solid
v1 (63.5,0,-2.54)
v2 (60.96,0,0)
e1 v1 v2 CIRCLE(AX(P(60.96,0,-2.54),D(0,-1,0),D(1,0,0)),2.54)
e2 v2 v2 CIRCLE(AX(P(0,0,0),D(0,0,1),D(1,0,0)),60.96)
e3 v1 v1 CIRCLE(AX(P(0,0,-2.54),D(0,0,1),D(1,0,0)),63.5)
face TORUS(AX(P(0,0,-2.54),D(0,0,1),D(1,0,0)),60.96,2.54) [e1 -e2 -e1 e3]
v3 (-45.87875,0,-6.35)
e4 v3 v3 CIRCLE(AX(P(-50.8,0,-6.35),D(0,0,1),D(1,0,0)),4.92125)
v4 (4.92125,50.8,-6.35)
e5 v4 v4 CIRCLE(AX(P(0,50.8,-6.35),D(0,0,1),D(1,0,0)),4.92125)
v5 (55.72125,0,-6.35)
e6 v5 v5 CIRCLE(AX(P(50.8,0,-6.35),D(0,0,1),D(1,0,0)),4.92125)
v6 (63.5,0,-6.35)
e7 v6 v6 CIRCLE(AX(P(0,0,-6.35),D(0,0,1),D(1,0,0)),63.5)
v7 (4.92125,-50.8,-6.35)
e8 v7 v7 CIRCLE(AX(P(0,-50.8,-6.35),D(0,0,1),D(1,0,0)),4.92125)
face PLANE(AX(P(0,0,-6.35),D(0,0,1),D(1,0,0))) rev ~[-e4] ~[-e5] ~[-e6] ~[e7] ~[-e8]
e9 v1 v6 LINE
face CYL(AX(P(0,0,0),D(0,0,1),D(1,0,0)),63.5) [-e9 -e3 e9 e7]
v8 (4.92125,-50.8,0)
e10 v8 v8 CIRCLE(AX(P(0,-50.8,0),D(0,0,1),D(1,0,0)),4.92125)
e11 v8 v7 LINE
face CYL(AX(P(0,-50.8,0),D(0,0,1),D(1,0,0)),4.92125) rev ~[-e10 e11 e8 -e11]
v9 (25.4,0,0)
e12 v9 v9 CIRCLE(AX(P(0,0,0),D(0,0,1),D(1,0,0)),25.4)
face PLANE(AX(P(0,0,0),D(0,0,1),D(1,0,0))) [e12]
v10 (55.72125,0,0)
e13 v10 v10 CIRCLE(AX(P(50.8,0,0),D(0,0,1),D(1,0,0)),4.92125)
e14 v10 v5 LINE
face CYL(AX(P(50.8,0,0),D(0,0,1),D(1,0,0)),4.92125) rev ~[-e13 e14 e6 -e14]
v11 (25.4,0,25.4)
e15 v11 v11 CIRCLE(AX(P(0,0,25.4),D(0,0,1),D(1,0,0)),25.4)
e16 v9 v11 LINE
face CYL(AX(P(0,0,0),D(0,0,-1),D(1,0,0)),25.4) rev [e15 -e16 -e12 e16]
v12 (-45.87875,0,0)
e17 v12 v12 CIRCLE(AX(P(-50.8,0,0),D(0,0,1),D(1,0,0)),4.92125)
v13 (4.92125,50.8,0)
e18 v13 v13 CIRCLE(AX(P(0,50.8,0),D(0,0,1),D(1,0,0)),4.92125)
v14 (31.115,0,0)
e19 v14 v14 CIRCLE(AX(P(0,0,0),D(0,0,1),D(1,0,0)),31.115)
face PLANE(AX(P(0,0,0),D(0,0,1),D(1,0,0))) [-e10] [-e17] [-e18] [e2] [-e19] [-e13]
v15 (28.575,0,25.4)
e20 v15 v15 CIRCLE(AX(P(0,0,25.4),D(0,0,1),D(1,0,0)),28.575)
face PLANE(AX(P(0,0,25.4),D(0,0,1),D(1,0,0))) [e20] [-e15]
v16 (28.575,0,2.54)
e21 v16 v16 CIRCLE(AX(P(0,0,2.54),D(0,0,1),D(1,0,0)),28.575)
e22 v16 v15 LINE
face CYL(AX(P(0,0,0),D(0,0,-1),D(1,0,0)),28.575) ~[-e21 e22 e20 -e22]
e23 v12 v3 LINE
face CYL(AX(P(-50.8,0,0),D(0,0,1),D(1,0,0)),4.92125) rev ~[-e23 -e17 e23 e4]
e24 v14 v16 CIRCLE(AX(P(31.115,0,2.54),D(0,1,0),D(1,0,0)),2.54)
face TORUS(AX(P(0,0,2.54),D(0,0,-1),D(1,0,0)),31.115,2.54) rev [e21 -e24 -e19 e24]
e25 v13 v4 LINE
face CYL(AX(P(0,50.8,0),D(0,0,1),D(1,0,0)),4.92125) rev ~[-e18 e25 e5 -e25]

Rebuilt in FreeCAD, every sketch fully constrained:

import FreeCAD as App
import Part
import Sketcher
Q = App.Units.Quantity


def edges_at(feature, points):
    """Names of the edges that pass closest to the given points."""
    edges = feature.Shape.Edges
    near = lambda p: min(range(len(edges)), key=lambda i: edges[i].distToShape(Part.Vertex(*p))[0])
    return sorted({f"Edge{near(p) + 1}" for p in points})

doc = App.newDocument("Part")
body = doc.addObject("PartDesign::Body", "Body")

# Sketch on XY plane
sketch1 = doc.addObject("Sketcher::SketchObject", "Sketch")
body.addObject(sketch1)
sketch1.AttachmentSupport = (doc.XY_Plane, [""])
sketch1.MapMode = "FlatFace"
sketch1.addGeometry(Part.Circle(App.Vector(0, 0, 0), App.Vector(0, 0, 1), 29), False)
sketch1.addGeometry(Part.Circle(App.Vector(0, 0, 0), App.Vector(0, 0, 1), 25), False)
sketch1.addConstraint(Sketcher.Constraint("Coincident", 0, 3, -1, 1))
sketch1.addConstraint(Sketcher.Constraint("Coincident", 1, 3, -1, 1))
sketch1.addConstraint(Sketcher.Constraint("Diameter", 1, Q("2 in")))
sketch1.addConstraint(Sketcher.Constraint("Diameter", 0, Q("2.25 in")))
pad1 = doc.addObject("PartDesign::Pad", "Pad")
body.addObject(pad1)
pad1.Profile = sketch1
pad1.Length = Q("1 in")

# Sketch on XY plane
sketch2 = doc.addObject("Sketcher::SketchObject", "Sketch001")
body.addObject(sketch2)
sketch2.AttachmentSupport = (doc.XY_Plane, [""])
sketch2.MapMode = "FlatFace"
sketch2.addGeometry(Part.Circle(App.Vector(0, 0, 0), App.Vector(0, 0, 1), 64), False)
sketch2.addConstraint(Sketcher.Constraint("Coincident", 0, 3, -1, 1))
sketch2.addConstraint(Sketcher.Constraint("Diameter", 0, Q("5 in")))
pad2 = doc.addObject("PartDesign::Pad", "Pad001")
body.addObject(pad2)
pad2.Profile = sketch2
pad2.Length = Q("0.25 in")
pad2.Reversed = True
doc.recompute()

fillet = doc.addObject("PartDesign::Fillet", "Fillet")
body.addObject(fillet)
fillet.Base = (pad2, edges_at(pad2, [(-63.5, 0, 0), (-28.575, 0, 0)]))
fillet.Radius = Q("0.1 in")

# Sketch on XY plane
sketch3 = doc.addObject("Sketcher::SketchObject", "Sketch002")
body.addObject(sketch3)
sketch3.AttachmentSupport = (doc.XY_Plane, [""])
sketch3.MapMode = "FlatFace"
sketch3.addGeometry(Part.Circle(App.Vector(50.8, 0, 0), App.Vector(0, 0, 1), 4.9), False)
sketch3.addGeometry(Part.Circle(App.Vector(0, -50.8, 0), App.Vector(0, 0, 1), 4.9), False)
sketch3.addGeometry(Part.Circle(App.Vector(-50.8, 0, 0), App.Vector(0, 0, 1), 4.9), False)
sketch3.addGeometry(Part.Circle(App.Vector(0, 50.8, 0), App.Vector(0, 0, 1), 4.9), False)
sketch3.addConstraint(Sketcher.Constraint("Equal", 0, 1))
sketch3.addConstraint(Sketcher.Constraint("Equal", 1, 2))
sketch3.addConstraint(Sketcher.Constraint("Equal", 2, 3))
sketch3.addConstraint(Sketcher.Constraint("Symmetric", 0, 3, 2, 3, -1, 1))
sketch3.addConstraint(Sketcher.Constraint("Symmetric", 1, 3, 3, 3, -1, 1))
sketch3.addConstraint(Sketcher.Constraint("PointOnObject", 0, 3, -1))
sketch3.addConstraint(Sketcher.Constraint("PointOnObject", 1, 3, -2))
sketch3.addConstraint(Sketcher.Constraint("DistanceX", -1, 1, 0, 3, Q("2 in")))
sketch3.addConstraint(Sketcher.Constraint("DistanceY", 1, 3, -1, 1, Q("2 in")))
sketch3.addConstraint(Sketcher.Constraint("Diameter", 0, Q("0.3875 in")))
pocket1 = doc.addObject("PartDesign::Pocket", "Pocket")
body.addObject(pocket1)
pocket1.Profile = sketch3
pocket1.Type = "ThroughAll"

doc.recompute()
